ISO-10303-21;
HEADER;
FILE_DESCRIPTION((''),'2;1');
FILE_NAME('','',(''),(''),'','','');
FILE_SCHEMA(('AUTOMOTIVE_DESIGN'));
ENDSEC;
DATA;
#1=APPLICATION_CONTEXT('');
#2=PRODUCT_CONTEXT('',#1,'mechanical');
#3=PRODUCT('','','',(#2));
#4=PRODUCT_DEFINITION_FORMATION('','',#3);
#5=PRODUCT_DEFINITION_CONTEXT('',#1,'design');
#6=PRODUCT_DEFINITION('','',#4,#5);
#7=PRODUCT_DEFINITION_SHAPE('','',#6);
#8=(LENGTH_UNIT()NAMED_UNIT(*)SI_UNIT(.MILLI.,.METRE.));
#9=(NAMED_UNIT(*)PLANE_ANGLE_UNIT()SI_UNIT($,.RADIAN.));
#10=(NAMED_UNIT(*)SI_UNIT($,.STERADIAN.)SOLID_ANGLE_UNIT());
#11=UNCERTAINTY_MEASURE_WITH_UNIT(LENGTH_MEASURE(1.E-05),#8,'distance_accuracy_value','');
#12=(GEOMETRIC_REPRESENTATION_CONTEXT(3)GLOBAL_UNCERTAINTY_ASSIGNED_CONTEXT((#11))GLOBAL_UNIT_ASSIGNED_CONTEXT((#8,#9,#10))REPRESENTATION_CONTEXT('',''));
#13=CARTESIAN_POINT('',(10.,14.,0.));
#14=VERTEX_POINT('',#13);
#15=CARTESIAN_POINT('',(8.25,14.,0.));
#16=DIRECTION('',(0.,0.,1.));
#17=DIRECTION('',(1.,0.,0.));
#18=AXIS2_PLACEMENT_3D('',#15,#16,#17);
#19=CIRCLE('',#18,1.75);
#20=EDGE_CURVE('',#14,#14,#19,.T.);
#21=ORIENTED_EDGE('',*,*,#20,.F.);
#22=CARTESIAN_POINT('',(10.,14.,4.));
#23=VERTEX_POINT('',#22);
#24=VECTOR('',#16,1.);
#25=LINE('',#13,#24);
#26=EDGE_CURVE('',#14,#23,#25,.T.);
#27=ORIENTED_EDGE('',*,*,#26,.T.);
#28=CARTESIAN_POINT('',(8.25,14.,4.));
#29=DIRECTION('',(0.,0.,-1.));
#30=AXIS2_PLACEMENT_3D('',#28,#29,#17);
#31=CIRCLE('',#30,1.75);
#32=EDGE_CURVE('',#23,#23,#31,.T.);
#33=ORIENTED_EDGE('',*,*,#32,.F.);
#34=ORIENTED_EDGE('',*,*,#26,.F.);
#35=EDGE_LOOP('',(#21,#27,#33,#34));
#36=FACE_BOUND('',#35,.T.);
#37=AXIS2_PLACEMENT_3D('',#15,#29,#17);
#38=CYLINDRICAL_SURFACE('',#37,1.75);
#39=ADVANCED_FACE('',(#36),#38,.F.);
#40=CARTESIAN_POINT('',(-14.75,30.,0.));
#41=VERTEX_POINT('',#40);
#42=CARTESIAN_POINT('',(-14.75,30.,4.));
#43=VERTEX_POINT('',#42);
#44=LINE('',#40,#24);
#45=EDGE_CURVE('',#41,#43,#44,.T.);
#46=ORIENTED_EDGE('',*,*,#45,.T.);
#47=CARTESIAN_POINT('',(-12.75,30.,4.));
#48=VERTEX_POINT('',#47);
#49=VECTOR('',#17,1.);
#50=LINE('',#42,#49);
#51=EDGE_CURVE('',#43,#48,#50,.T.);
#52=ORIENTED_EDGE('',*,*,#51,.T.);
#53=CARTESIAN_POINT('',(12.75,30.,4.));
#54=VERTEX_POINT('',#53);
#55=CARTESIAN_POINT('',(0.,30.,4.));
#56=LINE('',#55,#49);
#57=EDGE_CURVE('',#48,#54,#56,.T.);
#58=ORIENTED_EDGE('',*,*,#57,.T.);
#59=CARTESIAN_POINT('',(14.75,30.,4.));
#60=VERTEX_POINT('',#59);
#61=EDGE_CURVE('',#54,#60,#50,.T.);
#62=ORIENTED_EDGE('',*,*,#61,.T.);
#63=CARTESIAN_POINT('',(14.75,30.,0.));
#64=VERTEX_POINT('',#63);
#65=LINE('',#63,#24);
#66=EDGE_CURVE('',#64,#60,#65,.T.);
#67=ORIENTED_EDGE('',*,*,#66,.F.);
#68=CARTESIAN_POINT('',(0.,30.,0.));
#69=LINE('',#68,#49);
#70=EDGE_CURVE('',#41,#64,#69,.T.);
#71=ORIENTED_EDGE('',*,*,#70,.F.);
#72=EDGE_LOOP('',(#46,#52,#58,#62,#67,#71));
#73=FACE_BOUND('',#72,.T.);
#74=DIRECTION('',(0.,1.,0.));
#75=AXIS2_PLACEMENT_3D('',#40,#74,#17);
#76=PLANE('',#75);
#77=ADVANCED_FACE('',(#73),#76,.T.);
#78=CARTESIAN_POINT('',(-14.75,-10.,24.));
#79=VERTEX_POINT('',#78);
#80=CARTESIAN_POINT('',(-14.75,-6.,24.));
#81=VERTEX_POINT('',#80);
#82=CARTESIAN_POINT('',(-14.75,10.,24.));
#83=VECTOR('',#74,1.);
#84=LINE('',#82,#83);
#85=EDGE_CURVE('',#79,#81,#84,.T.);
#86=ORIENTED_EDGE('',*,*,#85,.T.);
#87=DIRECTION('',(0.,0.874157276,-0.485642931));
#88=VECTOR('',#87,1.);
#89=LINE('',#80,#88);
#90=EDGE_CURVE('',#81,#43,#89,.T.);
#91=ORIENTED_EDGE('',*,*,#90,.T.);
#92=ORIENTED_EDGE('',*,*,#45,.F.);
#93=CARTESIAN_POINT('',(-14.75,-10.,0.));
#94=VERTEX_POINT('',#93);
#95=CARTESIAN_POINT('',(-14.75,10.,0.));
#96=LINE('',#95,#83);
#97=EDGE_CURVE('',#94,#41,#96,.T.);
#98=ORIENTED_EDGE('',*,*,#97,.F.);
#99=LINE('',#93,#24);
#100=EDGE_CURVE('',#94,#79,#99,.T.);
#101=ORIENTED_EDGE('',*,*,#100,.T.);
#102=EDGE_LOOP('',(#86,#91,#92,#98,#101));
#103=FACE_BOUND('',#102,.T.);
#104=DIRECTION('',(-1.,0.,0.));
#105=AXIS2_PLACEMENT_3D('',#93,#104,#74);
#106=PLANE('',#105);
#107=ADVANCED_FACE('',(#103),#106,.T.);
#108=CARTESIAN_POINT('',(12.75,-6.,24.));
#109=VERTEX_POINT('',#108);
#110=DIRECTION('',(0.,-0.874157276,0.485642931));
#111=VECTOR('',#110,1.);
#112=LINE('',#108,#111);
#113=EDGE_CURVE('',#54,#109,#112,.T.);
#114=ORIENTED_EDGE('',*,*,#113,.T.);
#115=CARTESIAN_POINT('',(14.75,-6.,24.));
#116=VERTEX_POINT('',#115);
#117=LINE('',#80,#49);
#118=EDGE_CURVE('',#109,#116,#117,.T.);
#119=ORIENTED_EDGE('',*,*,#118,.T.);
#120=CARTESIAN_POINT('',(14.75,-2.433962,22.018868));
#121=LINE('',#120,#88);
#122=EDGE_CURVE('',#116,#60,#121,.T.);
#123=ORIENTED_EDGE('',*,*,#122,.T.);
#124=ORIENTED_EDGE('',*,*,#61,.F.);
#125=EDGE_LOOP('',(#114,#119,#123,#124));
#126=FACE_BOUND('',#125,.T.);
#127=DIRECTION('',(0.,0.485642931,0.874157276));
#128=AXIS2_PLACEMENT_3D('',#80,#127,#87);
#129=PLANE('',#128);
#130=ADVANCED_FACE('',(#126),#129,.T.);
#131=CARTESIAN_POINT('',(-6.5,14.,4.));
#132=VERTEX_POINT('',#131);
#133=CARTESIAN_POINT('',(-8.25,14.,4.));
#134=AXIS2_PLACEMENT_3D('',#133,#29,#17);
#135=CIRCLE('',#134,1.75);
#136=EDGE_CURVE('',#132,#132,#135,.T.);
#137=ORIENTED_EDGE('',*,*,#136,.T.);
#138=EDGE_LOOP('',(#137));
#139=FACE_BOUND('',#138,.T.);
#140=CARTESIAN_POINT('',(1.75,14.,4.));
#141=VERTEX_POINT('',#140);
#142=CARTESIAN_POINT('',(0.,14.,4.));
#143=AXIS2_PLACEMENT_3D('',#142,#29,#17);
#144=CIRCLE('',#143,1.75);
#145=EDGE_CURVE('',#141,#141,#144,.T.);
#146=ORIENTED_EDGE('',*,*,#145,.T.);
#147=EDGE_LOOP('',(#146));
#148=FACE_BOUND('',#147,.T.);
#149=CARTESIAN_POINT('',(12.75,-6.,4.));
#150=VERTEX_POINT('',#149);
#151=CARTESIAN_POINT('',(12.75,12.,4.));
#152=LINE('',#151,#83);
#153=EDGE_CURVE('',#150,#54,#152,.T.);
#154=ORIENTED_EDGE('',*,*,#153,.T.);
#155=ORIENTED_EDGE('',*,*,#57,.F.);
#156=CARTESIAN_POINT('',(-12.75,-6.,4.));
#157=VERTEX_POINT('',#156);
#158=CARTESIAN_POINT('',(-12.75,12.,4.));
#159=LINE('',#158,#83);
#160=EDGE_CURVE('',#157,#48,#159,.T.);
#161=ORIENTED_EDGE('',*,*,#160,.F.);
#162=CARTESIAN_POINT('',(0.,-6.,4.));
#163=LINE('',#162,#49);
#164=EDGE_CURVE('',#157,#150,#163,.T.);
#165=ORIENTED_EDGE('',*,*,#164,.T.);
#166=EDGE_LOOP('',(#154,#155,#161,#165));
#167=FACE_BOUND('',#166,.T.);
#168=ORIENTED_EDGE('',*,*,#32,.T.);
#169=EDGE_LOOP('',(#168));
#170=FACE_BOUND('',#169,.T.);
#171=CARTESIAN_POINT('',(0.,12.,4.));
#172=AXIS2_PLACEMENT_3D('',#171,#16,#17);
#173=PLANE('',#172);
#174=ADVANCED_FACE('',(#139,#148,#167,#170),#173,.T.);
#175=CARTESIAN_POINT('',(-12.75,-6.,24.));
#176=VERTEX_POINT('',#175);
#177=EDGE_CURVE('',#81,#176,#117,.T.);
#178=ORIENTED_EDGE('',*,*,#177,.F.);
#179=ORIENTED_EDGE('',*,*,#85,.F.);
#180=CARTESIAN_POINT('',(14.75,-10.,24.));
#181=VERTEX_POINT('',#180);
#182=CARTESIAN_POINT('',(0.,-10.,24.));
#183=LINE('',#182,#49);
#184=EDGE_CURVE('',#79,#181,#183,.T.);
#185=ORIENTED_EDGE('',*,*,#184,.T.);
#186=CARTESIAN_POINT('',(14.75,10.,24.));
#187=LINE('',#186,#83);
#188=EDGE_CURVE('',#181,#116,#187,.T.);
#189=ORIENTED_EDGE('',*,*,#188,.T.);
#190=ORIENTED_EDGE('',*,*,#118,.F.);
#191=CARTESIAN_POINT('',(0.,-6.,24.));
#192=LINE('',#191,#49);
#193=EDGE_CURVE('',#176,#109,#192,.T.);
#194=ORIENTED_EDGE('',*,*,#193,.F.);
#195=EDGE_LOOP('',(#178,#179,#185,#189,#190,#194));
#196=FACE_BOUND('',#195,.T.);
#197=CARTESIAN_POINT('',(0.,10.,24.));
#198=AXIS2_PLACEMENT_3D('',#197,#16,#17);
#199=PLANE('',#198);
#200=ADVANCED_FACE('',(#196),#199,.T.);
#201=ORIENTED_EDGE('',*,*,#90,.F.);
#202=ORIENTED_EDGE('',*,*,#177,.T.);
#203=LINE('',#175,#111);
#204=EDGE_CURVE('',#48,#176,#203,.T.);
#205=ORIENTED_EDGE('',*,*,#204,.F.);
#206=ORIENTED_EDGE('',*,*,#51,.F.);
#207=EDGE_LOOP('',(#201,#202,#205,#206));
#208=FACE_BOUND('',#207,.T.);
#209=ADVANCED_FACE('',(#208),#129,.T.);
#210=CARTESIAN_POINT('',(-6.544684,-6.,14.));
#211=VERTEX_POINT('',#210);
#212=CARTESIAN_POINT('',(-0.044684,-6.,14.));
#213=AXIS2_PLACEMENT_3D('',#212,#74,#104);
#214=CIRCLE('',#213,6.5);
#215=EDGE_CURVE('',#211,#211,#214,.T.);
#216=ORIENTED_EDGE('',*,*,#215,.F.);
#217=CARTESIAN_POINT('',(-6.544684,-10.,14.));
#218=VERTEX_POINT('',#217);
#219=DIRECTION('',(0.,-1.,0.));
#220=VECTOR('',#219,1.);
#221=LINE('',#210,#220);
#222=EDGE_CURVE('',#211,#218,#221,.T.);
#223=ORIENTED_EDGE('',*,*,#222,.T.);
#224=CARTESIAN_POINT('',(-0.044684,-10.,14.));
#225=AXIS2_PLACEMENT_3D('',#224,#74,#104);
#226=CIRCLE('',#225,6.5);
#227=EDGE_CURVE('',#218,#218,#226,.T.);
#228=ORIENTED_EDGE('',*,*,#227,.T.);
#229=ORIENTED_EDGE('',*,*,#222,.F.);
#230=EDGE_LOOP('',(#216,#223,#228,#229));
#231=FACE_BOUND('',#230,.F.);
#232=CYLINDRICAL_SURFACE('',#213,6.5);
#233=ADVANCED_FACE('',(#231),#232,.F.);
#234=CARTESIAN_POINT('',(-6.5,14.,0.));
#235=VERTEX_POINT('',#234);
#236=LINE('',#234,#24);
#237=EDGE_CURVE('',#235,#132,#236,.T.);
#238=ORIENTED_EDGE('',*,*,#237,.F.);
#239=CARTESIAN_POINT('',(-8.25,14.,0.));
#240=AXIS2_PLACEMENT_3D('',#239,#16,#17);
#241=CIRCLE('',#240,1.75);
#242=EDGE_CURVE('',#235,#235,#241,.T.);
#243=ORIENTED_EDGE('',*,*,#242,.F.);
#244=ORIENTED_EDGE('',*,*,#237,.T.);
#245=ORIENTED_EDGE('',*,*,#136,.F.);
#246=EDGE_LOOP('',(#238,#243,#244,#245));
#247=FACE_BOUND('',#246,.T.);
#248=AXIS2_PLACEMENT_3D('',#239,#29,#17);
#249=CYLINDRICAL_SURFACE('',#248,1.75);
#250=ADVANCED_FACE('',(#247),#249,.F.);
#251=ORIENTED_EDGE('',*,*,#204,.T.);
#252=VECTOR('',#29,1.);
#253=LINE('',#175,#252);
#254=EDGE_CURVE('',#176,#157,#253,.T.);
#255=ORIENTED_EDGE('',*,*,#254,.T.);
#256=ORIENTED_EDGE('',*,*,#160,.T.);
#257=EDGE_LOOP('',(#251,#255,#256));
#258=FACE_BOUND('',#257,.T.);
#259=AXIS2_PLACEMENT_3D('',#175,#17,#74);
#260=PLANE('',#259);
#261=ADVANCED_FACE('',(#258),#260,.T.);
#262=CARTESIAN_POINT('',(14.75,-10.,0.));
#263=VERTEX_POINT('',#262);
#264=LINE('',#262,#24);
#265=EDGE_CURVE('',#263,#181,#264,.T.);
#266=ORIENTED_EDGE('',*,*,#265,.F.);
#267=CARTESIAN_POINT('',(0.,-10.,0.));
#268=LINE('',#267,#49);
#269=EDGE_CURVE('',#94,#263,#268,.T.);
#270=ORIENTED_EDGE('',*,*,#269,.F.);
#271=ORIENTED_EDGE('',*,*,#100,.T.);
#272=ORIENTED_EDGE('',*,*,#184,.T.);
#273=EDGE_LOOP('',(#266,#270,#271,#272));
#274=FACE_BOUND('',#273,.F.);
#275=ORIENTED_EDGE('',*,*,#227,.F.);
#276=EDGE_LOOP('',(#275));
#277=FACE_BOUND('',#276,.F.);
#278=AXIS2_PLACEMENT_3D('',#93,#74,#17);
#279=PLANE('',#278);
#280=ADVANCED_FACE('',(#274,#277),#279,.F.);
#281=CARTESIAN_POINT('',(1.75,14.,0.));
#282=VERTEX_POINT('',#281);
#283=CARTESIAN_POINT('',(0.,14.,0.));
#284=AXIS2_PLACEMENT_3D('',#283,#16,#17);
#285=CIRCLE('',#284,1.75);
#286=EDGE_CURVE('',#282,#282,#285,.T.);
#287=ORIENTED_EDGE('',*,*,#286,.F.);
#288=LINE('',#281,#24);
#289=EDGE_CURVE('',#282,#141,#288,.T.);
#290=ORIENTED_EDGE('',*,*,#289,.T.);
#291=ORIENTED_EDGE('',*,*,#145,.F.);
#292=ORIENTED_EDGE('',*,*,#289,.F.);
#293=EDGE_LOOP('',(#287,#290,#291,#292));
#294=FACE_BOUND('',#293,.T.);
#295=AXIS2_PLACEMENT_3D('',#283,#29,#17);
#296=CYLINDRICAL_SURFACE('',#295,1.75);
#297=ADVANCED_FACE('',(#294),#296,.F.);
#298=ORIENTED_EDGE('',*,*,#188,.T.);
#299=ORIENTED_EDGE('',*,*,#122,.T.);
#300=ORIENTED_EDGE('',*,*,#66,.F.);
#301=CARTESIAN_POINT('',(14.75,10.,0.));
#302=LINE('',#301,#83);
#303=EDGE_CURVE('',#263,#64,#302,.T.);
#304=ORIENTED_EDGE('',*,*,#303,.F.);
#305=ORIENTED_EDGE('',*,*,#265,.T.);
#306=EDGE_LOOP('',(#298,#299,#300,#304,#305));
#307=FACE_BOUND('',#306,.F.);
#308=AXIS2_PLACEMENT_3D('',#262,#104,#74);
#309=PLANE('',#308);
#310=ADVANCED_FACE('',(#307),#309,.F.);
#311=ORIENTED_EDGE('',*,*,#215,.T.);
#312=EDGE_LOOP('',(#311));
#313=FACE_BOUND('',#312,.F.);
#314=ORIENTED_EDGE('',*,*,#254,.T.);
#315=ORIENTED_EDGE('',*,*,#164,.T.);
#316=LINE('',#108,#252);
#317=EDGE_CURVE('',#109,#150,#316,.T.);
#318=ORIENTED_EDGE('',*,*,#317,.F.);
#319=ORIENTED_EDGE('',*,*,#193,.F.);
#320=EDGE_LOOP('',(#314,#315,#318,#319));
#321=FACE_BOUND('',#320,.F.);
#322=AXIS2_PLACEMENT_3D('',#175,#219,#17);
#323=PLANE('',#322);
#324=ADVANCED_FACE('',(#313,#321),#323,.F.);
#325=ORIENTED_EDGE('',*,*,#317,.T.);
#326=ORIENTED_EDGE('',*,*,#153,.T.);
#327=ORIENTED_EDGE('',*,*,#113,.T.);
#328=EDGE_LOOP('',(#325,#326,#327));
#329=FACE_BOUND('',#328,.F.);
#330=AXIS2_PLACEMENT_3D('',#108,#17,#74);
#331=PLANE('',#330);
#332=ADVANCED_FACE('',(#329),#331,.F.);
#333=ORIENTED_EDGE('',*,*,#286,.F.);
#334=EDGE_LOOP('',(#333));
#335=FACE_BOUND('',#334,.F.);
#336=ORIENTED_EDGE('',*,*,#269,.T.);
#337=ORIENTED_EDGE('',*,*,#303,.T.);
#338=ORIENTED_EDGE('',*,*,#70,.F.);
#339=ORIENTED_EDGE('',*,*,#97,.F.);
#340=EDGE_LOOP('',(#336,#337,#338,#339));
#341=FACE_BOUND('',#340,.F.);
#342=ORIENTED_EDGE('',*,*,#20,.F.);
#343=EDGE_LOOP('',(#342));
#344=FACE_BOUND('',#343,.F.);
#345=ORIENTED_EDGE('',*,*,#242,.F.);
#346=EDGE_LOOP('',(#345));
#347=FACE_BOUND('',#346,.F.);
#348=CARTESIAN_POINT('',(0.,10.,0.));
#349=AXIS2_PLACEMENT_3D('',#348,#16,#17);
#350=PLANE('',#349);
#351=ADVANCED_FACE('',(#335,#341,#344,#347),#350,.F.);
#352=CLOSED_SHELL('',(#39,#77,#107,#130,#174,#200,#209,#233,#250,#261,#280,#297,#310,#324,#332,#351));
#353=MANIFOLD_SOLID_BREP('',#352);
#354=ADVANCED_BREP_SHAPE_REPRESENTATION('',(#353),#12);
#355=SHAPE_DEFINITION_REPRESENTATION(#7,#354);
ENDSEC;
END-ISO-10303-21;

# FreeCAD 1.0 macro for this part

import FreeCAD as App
import Part
import Sketcher

V = App.Vector
Q = App.Units.Quantity


def add_polygon(sketch, points):
    """Adds a closed chain of lines whose ends are joined by coincident constraints."""
    first, n = sketch.GeometryCount, len(points)
    for a, b in zip(points, points[1:] + points[:1]):
        sketch.addGeometry(Part.LineSegment(App.Vector(*a, 0), App.Vector(*b, 0)), False)
    for i in range(n):
        sketch.addConstraint(Sketcher.Constraint("Coincident", first + i, 2, first + (i + 1) % n, 1))

doc = App.newDocument("Part")
params = doc.addObject("Spreadsheet::Sheet", "Params")
for row, (alias, value) in enumerate([
    ("sketch1_diameter", "3.5 mm"),
    ("sketch1_height", "40 mm"),
    ("sketch1_width", "29.5 mm"),
    ("pad1_length", "24 mm"),
    ("sketch2_height", "36 mm"),
    ("sketch2_width", "25.5 mm"),
    ("pocket1_length", "20 mm"),
    ("sketch3_width", "36 mm"),
    ("sketch3_height", "20 mm"),
    ("sketch4_diameter", "13 mm"),
    ("pocket3_length", "5 mm"),
], start=1):
    params.set(f"A{row}", alias)
    params.set(f"B{row}", "=" + value)
    params.setAlias(f"B{row}", alias)

body = doc.addObject("PartDesign::Body", "Body")

# Sketch on XY plane
sketch1 = body.newObject("Sketcher::SketchObject", "Sketch")
sketch1.AttachmentSupport = (doc.getObject("XY_Plane"), [""])
sketch1.MapMode = "FlatFace"
add_polygon(sketch1, [(-14.75, 30), (-14.75, -10), (14.75, -10), (14.75, 30)])  # lines 0-3
sketch1.addGeometry(Part.Circle(V(-8.25, 14, 0), V(0, 0, 1), 1.75), False)  # 4
sketch1.addGeometry(Part.Circle(V(0, 14, 0), V(0, 0, 1), 1.75), False)  # 5
sketch1.addGeometry(Part.Circle(V(8.25, 14, 0), V(0, 0, 1), 1.75), False)  # 6
sketch1.addConstraint(Sketcher.Constraint("Vertical", 0))
sketch1.addConstraint(Sketcher.Constraint("Horizontal", 1))
sketch1.addConstraint(Sketcher.Constraint("Vertical", 2))
sketch1.addConstraint(Sketcher.Constraint("Horizontal", 3))
sketch1.addConstraint(Sketcher.Constraint("Equal", 4, 5))
sketch1.addConstraint(Sketcher.Constraint("Equal", 5, 6))
sketch1.addConstraint(Sketcher.Constraint("Symmetric", 4, 3, 6, 3, -2))
sketch1.addConstraint(Sketcher.Constraint("PointOnObject", 5, 3, -2))
sketch1.addConstraint(Sketcher.Constraint("Horizontal", 4, 3, 5, 3))
sketch1.addConstraint(Sketcher.Constraint("Diameter", 4, Q("3.5 mm")))
sketch1.addConstraint(Sketcher.Constraint("DistanceY", 0, 2, 0, 1, Q("40 mm")))
sketch1.addConstraint(Sketcher.Constraint("DistanceX", 1, 1, 1, 2, Q("29.5 mm")))
sketch1.addConstraint(Sketcher.Constraint("DistanceY", -1, 1, 4, 3, Q("14 mm")))
sketch1.addConstraint(Sketcher.Constraint("DistanceY", 0, 2, -1, 1, Q("10 mm")))
sketch1.addConstraint(Sketcher.Constraint("DistanceX", 0, 2, 6, 3, Q("23 mm")))
sketch1.addConstraint(Sketcher.Constraint("DistanceX", 4, 3, 1, 2, Q("23 mm")))
sketch1.setExpression("Constraints[13]", "Params.sketch1_diameter")
sketch1.setExpression("Constraints[14]", "Params.sketch1_height")
sketch1.setExpression("Constraints[15]", "Params.sketch1_width")
pad1 = body.newObject("PartDesign::Pad", "Pad")
pad1.Profile = sketch1
pad1.setExpression("Length", "Params.pad1_length")

# Sketch on XY plane
sketch2 = body.newObject("Sketcher::SketchObject", "Sketch001")
sketch2.AttachmentSupport = (doc.getObject("XY_Plane"), [""])
sketch2.MapMode = "FlatFace"
sketch2.AttachmentOffset = App.Placement(V(0, 0, 24), App.Rotation())
add_polygon(sketch2, [(-12.75, 30), (-12.75, -6), (12.75, -6), (12.75, 30)])  # lines 0-3
sketch2.addConstraint(Sketcher.Constraint("Vertical", 0))
sketch2.addConstraint(Sketcher.Constraint("Horizontal", 1))
sketch2.addConstraint(Sketcher.Constraint("Vertical", 2))
sketch2.addConstraint(Sketcher.Constraint("Horizontal", 3))
sketch2.addConstraint(Sketcher.Constraint("DistanceY", 0, 2, 0, 1, Q("36 mm")))
sketch2.addConstraint(Sketcher.Constraint("DistanceX", 1, 1, 1, 2, Q("25.5 mm")))
sketch2.addConstraint(Sketcher.Constraint("DistanceY", 0, 2, -1, 1, Q("6 mm")))
sketch2.addConstraint(Sketcher.Constraint("DistanceX", 0, 2, -1, 1, Q("12.75 mm")))
sketch2.setExpression("Constraints[8]", "Params.sketch2_height")
sketch2.setExpression("Constraints[9]", "Params.sketch2_width")
pocket1 = body.newObject("PartDesign::Pocket", "Pocket")
pocket1.Profile = sketch2
pocket1.setExpression("Length", "Params.pocket1_length")

# Sketch on YZ plane
sketch3 = body.newObject("Sketcher::SketchObject", "Sketch002")
sketch3.AttachmentSupport = (doc.getObject("YZ_Plane"), [""])
sketch3.MapMode = "FlatFace"
sketch3.AttachmentOffset = App.Placement(V(0, 0, -14.75), App.Rotation())
add_polygon(sketch3, [(-6, 24), (30, 24), (30, 4)])  # lines 0-2
sketch3.addConstraint(Sketcher.Constraint("Horizontal", 0))
sketch3.addConstraint(Sketcher.Constraint("Vertical", 1))
sketch3.addConstraint(Sketcher.Constraint("DistanceX", 0, 1, 0, 2, Q("36 mm")))
sketch3.addConstraint(Sketcher.Constraint("DistanceY", 1, 2, 1, 1, Q("20 mm")))
sketch3.addConstraint(Sketcher.Constraint("DistanceX", -1, 1, 0, 2, Q("30 mm")))
sketch3.addConstraint(Sketcher.Constraint("DistanceY", -1, 1, 0, 2, Q("24 mm")))
sketch3.setExpression("Constraints[5]", "Params.sketch3_width")
sketch3.setExpression("Constraints[6]", "Params.sketch3_height")
pocket2 = body.newObject("PartDesign::Pocket", "Pocket001")
pocket2.Profile = sketch3
pocket2.Type = "ThroughAll"
pocket2.Reversed = True

# Sketch on XZ plane
sketch4 = body.newObject("Sketcher::SketchObject", "Sketch003")
sketch4.AttachmentSupport = (doc.getObject("XZ_Plane"), [""])
sketch4.MapMode = "FlatFace"
sketch4.AttachmentOffset = App.Placement(V(0, 0, 6), App.Rotation())
sketch4.addGeometry(Part.Circle(V(-0.044684, 14, 0), V(0, 0, 1), 6.5), False)
sketch4.addConstraint(Sketcher.Constraint("Diameter", 0, Q("13 mm")))
sketch4.addConstraint(Sketcher.Constraint("DistanceY", -1, 1, 0, 3, Q("14 mm")))
sketch4.addConstraint(Sketcher.Constraint("DistanceX", 0, 3, -1, 1, Q("0.044684 mm")))
sketch4.setExpression("Constraints[0]", "Params.sketch4_diameter")
pocket3 = body.newObject("PartDesign::Pocket", "Pocket002")
pocket3.Profile = sketch4
pocket3.setExpression("Length", "Params.pocket3_length")
pocket3.Reversed = True

doc.recompute()
